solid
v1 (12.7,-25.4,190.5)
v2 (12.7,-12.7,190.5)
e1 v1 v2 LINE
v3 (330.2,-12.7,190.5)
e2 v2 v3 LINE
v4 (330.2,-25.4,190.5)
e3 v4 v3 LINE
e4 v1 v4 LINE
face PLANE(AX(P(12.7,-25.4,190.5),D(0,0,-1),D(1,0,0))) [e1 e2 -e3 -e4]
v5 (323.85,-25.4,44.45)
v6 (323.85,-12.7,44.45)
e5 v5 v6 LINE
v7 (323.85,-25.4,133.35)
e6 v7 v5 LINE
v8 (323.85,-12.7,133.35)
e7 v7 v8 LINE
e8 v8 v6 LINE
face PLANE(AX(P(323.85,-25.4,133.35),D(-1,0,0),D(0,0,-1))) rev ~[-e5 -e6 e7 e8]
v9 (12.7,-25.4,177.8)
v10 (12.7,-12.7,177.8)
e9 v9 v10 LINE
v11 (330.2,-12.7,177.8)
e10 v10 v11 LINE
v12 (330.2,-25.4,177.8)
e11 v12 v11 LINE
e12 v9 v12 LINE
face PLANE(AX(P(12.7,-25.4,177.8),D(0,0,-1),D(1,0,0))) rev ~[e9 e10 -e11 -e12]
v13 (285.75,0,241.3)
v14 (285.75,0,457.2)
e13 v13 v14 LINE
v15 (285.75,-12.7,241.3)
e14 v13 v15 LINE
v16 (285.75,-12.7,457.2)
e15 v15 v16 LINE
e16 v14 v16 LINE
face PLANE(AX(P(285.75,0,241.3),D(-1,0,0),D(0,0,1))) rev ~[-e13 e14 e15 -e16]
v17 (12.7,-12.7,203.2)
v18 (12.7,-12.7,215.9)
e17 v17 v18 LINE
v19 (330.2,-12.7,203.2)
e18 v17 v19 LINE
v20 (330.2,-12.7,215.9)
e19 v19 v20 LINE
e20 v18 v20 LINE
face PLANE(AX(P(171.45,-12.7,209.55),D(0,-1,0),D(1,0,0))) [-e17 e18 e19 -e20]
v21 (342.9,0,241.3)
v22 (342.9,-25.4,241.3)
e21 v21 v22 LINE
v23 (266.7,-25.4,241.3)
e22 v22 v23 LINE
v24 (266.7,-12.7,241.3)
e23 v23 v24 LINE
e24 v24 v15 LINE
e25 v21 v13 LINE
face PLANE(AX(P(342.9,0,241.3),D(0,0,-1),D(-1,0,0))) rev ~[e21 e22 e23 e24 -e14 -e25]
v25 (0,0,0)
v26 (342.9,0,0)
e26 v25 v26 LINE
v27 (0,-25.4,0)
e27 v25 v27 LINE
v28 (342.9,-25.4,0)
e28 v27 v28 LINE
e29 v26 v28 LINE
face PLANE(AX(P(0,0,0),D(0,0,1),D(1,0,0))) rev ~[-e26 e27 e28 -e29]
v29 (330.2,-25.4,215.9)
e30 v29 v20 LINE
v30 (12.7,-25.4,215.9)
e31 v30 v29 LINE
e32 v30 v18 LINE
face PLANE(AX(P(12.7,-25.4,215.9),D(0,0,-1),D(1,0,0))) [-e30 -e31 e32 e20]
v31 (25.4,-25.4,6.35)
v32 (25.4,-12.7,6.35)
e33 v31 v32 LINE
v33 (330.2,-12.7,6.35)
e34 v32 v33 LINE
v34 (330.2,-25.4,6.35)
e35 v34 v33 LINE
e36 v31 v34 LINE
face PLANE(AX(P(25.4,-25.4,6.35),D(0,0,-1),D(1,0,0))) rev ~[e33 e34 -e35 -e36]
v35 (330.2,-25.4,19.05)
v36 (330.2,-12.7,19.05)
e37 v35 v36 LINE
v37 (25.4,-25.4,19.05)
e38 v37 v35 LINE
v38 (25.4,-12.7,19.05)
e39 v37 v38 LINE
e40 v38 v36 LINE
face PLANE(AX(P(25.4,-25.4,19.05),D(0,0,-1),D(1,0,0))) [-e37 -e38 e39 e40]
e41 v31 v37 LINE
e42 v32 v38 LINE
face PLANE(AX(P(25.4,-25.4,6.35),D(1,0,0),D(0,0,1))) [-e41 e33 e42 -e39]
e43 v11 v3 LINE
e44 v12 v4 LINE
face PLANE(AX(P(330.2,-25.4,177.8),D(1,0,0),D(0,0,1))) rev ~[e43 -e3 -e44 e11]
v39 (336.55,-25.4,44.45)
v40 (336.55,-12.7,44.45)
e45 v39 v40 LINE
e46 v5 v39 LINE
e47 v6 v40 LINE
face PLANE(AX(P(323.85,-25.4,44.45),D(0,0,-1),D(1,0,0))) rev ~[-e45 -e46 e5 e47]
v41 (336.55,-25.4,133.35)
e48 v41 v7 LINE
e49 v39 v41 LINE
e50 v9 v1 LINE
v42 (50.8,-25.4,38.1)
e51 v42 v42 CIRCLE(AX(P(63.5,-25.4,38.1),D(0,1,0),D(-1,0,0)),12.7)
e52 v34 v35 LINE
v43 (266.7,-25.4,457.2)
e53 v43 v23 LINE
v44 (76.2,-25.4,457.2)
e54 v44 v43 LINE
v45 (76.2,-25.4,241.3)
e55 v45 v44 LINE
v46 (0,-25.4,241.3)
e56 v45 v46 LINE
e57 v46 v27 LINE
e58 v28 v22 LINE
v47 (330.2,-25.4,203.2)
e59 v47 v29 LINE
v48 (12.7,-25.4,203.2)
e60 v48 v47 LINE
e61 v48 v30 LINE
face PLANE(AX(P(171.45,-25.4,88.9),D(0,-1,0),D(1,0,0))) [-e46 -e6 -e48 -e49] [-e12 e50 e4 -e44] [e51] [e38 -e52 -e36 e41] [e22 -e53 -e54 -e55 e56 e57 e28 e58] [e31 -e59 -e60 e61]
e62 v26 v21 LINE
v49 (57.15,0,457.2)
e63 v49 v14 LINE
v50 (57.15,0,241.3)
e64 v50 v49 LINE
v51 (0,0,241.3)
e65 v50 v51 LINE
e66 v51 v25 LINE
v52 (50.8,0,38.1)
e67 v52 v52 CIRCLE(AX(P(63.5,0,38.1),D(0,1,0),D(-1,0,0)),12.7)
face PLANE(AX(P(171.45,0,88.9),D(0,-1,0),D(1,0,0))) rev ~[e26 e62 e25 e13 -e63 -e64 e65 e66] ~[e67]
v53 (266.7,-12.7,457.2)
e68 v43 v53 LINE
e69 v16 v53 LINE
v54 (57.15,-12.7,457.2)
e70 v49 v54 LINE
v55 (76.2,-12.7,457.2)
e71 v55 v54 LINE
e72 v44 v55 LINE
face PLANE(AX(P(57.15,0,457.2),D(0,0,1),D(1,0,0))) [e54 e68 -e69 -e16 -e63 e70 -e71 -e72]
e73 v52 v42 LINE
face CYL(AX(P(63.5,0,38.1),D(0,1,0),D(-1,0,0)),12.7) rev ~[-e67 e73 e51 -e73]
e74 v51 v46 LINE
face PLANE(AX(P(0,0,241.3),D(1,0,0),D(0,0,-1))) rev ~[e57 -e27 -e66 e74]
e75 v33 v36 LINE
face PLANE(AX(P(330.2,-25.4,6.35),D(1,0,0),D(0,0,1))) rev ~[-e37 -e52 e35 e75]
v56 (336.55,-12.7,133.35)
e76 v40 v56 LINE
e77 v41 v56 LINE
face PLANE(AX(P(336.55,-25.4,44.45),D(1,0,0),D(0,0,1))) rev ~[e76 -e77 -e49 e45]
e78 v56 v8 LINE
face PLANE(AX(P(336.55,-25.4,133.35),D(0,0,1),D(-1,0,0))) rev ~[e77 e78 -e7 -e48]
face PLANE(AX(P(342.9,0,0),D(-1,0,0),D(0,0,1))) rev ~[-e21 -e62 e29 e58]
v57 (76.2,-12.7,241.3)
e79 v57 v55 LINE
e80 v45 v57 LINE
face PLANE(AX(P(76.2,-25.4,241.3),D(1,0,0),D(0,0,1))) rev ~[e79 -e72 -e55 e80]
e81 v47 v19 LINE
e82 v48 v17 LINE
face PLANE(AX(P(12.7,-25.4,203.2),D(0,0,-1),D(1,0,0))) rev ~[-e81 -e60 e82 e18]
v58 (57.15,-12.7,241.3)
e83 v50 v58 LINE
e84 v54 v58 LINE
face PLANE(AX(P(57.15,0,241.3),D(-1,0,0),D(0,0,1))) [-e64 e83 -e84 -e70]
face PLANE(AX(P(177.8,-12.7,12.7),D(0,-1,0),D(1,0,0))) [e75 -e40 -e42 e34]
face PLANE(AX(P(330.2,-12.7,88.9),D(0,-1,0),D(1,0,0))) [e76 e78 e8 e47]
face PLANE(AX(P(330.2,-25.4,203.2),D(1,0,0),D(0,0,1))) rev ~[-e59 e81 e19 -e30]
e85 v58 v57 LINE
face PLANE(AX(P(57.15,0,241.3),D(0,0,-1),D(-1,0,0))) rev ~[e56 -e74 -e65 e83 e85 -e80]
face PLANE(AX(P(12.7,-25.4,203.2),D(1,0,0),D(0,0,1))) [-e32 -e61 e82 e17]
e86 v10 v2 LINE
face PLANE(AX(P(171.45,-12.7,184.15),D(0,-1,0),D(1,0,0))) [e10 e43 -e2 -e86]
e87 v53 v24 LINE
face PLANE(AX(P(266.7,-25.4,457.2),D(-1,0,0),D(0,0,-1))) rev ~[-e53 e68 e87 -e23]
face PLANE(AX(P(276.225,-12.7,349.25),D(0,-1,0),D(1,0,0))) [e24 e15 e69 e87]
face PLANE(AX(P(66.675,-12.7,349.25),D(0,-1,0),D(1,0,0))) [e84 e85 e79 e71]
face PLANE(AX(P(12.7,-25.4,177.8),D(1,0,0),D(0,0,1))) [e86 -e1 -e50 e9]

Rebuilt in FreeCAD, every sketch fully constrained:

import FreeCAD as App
import Part
import Sketcher
Q = App.Units.Quantity

doc = App.newDocument("Part")
body = doc.addObject("PartDesign::Body", "Body")

sketch1 = body.newObject("Sketcher::SketchObject", "Sketch")
sketch1.AttachmentSupport = (doc.getObject("XZ_Plane"), [""])
sketch1.MapMode = "FlatFace"
sketch1.addGeometry(Part.LineSegment(App.Vector(0, 0, 0), App.Vector(343, 0, 0)), False)
sketch1.addGeometry(Part.LineSegment(App.Vector(343, 0, 0), App.Vector(343, 241, 0)), False)
sketch1.addGeometry(Part.LineSegment(App.Vector(343, 241, 0), App.Vector(286, 241, 0)), False)
sketch1.addGeometry(Part.LineSegment(App.Vector(286, 241, 0), App.Vector(286, 457, 0)), False)
sketch1.addGeometry(Part.LineSegment(App.Vector(286, 457, 0), App.Vector(57, 457, 0)), False)
sketch1.addGeometry(Part.LineSegment(App.Vector(57, 457, 0), App.Vector(57, 241, 0)), False)
sketch1.addGeometry(Part.LineSegment(App.Vector(57, 241, 0), App.Vector(0, 241, 0)), False)
sketch1.addGeometry(Part.LineSegment(App.Vector(0, 241, 0), App.Vector(0, 0, 0)), False)
sketch1.addConstraint(Sketcher.Constraint("Coincident", 0, 2, 1, 1))
sketch1.addConstraint(Sketcher.Constraint("Coincident", 1, 2, 2, 1))
sketch1.addConstraint(Sketcher.Constraint("Coincident", 2, 2, 3, 1))
sketch1.addConstraint(Sketcher.Constraint("Coincident", 3, 2, 4, 1))
sketch1.addConstraint(Sketcher.Constraint("Coincident", 4, 2, 5, 1))
sketch1.addConstraint(Sketcher.Constraint("Coincident", 5, 2, 6, 1))
sketch1.addConstraint(Sketcher.Constraint("Coincident", 6, 2, 7, 1))
sketch1.addConstraint(Sketcher.Constraint("Coincident", 7, 2, 0, 1))
sketch1.addConstraint(Sketcher.Constraint("Horizontal", 0))
sketch1.addConstraint(Sketcher.Constraint("Vertical", 1))
sketch1.addConstraint(Sketcher.Constraint("Horizontal", 2))
sketch1.addConstraint(Sketcher.Constraint("Vertical", 3))
sketch1.addConstraint(Sketcher.Constraint("Horizontal", 4))
sketch1.addConstraint(Sketcher.Constraint("Vertical", 5))
sketch1.addConstraint(Sketcher.Constraint("Horizontal", 6))
sketch1.addConstraint(Sketcher.Constraint("Vertical", 7))
sketch1.addConstraint(Sketcher.Constraint("Coincident", 7, 2, -1, 1))
sketch1.addConstraint(Sketcher.Constraint("Horizontal", 2, 2, 5, 2))
sketch1.addConstraint(Sketcher.Constraint("Equal", 2, 6))
sketch1.addConstraint(Sketcher.Constraint("DistanceX", 4, 2, 4, 1, Q("9 in")))
sketch1.addConstraint(Sketcher.Constraint("DistanceX", 0, 1, 0, 2, Q("13.5 in")))
sketch1.addConstraint(Sketcher.Constraint("DistanceY", 1, 1, 1, 2, Q("9.5 in")))
sketch1.addConstraint(Sketcher.Constraint("DistanceY", 3, 1, 3, 2, Q("8.5 in")))
pad1 = body.newObject("PartDesign::Pad", "Pad")
pad1.Profile = sketch1
pad1.Length = Q("1 in")

sketch2 = body.newObject("Sketcher::SketchObject", "Sketch001")
sketch2.AttachmentSupport = (doc.getObject("XZ_Plane"), [""])
sketch2.MapMode = "FlatFace"
sketch2.AttachmentOffset = App.Placement(App.Vector(0, 0, 1 * 25.4), App.Rotation())
sketch2.addGeometry(Part.LineSegment(App.Vector(25, 19, 0), App.Vector(25, 6, 0)), False)
sketch2.addGeometry(Part.LineSegment(App.Vector(25, 6, 0), App.Vector(330, 6, 0)), False)
sketch2.addGeometry(Part.LineSegment(App.Vector(330, 6, 0), App.Vector(330, 19, 0)), False)
sketch2.addGeometry(Part.LineSegment(App.Vector(330, 19, 0), App.Vector(25, 19, 0)), False)
sketch2.addConstraint(Sketcher.Constraint("Coincident", 0, 2, 1, 1))
sketch2.addConstraint(Sketcher.Constraint("Coincident", 1, 2, 2, 1))
sketch2.addConstraint(Sketcher.Constraint("Coincident", 2, 2, 3, 1))
sketch2.addConstraint(Sketcher.Constraint("Coincident", 3, 2, 0, 1))
sketch2.addConstraint(Sketcher.Constraint("Vertical", 0))
sketch2.addConstraint(Sketcher.Constraint("Horizontal", 1))
sketch2.addConstraint(Sketcher.Constraint("Vertical", 2))
sketch2.addConstraint(Sketcher.Constraint("Horizontal", 3))
sketch2.addConstraint(Sketcher.Constraint("DistanceX", 1, 1, 1, 2, Q("12 in")))
sketch2.addConstraint(Sketcher.Constraint("DistanceY", 0, 2, 0, 1, Q("0.5 in")))
sketch2.addConstraint(Sketcher.Constraint("DistanceX", -1, 1, 0, 2, Q("1 in")))
sketch2.addConstraint(Sketcher.Constraint("DistanceY", -1, 1, 0, 2, Q("0.25 in")))
pocket1 = body.newObject("PartDesign::Pocket", "Pocket")
pocket1.Profile = sketch2
pocket1.Length = Q("0.5 in")

sketch3 = body.newObject("Sketcher::SketchObject", "Sketch002")
sketch3.AttachmentSupport = (doc.getObject("XZ_Plane"), [""])
sketch3.MapMode = "FlatFace"
sketch3.AttachmentOffset = App.Placement(App.Vector(0, 0, 1 * 25.4), App.Rotation())
sketch3.addGeometry(Part.LineSegment(App.Vector(25, -6, 0), App.Vector(25, -19, 0)), False)
sketch3.addGeometry(Part.LineSegment(App.Vector(25, -19, 0), App.Vector(330, -19, 0)), False)
sketch3.addGeometry(Part.LineSegment(App.Vector(330, -19, 0), App.Vector(330, -6, 0)), False)
sketch3.addGeometry(Part.LineSegment(App.Vector(330, -6, 0), App.Vector(25, -6, 0)), False)
sketch3.addConstraint(Sketcher.Constraint("Coincident", 0, 2, 1, 1))
sketch3.addConstraint(Sketcher.Constraint("Coincident", 1, 2, 2, 1))
sketch3.addConstraint(Sketcher.Constraint("Coincident", 2, 2, 3, 1))
sketch3.addConstraint(Sketcher.Constraint("Coincident", 3, 2, 0, 1))
sketch3.addConstraint(Sketcher.Constraint("Vertical", 0))
sketch3.addConstraint(Sketcher.Constraint("Horizontal", 1))
sketch3.addConstraint(Sketcher.Constraint("Vertical", 2))
sketch3.addConstraint(Sketcher.Constraint("Horizontal", 3))
sketch3.addConstraint(Sketcher.Constraint("DistanceX", 1, 1, 1, 2, Q("12 in")))
sketch3.addConstraint(Sketcher.Constraint("DistanceY", 0, 2, 0, 1, Q("0.5 in")))
sketch3.addConstraint(Sketcher.Constraint("DistanceX", -1, 1, 0, 2, Q("1 in")))
sketch3.addConstraint(Sketcher.Constraint("DistanceY", 0, 2, -1, 1, Q("0.75 in")))
pocket2 = body.newObject("PartDesign::Pocket", "Pocket001")
pocket2.Profile = sketch3
pocket2.Length = Q("0.5 in")

sketch4 = body.newObject("Sketcher::SketchObject", "Sketch003")
sketch4.AttachmentSupport = (doc.getObject("XZ_Plane"), [""])
sketch4.MapMode = "FlatFace"
sketch4.addGeometry(Part.Circle(App.Vector(64, 38, 0), App.Vector(0, 0, 1), 13), False)
sketch4.addConstraint(Sketcher.Constraint("Diameter", 0, Q("1 in")))
sketch4.addConstraint(Sketcher.Constraint("DistanceX", -1, 1, 0, 3, Q("2.5 in")))
sketch4.addConstraint(Sketcher.Constraint("DistanceY", -1, 1, 0, 3, Q("1.5 in")))
pocket3 = body.newObject("PartDesign::Pocket", "Pocket002")
pocket3.Profile = sketch4
pocket3.Length = Q("1 in")
pocket3.Reversed = True

sketch5 = body.newObject("Sketcher::SketchObject", "Sketch004")
sketch5.AttachmentSupport = (doc.getObject("XZ_Plane"), [""])
sketch5.MapMode = "FlatFace"
sketch5.AttachmentOffset = App.Placement(App.Vector(0, 0, 1 * 25.4), App.Rotation())
sketch5.addGeometry(Part.LineSegment(App.Vector(324, 44, 0), App.Vector(337, 44, 0)), False)
sketch5.addGeometry(Part.LineSegment(App.Vector(337, 44, 0), App.Vector(337, 133, 0)), False)
sketch5.addGeometry(Part.LineSegment(App.Vector(337, 133, 0), App.Vector(324, 133, 0)), False)
sketch5.addGeometry(Part.LineSegment(App.Vector(324, 133, 0), App.Vector(324, 44, 0)), False)
sketch5.addConstraint(Sketcher.Constraint("Coincident", 0, 2, 1, 1))
sketch5.addConstraint(Sketcher.Constraint("Coincident", 1, 2, 2, 1))
sketch5.addConstraint(Sketcher.Constraint("Coincident", 2, 2, 3, 1))
sketch5.addConstraint(Sketcher.Constraint("Coincident", 3, 2, 0, 1))
sketch5.addConstraint(Sketcher.Constraint("Horizontal", 0))
sketch5.addConstraint(Sketcher.Constraint("Vertical", 1))
sketch5.addConstraint(Sketcher.Constraint("Horizontal", 2))
sketch5.addConstraint(Sketcher.Constraint("Vertical", 3))
sketch5.addConstraint(Sketcher.Constraint("DistanceX", 0, 1, 0, 2, Q("0.5 in")))
sketch5.addConstraint(Sketcher.Constraint("DistanceY", 1, 1, 1, 2, Q("3.5 in")))
sketch5.addConstraint(Sketcher.Constraint("DistanceX", -1, 1, 0, 2, Q("13.25 in")))
sketch5.addConstraint(Sketcher.Constraint("DistanceY", -1, 1, 0, 2, Q("1.75 in")))
pocket4 = body.newObject("PartDesign::Pocket", "Pocket003")
pocket4.Profile = sketch5
pocket4.Length = Q("0.5 in")

sketch6 = body.newObject("Sketcher::SketchObject", "Sketch005")
sketch6.AttachmentSupport = (doc.getObject("XZ_Plane"), [""])
sketch6.MapMode = "FlatFace"
sketch6.AttachmentOffset = App.Placement(App.Vector(0, 0, 1 * 25.4), App.Rotation())
sketch6.addGeometry(Part.LineSegment(App.Vector(76, 457, 0), App.Vector(57, 457, 0)), False)
sketch6.addGeometry(Part.LineSegment(App.Vector(57, 457, 0), App.Vector(57, 241, 0)), False)
sketch6.addGeometry(Part.LineSegment(App.Vector(57, 241, 0), App.Vector(76, 241, 0)), False)
sketch6.addGeometry(Part.LineSegment(App.Vector(76, 241, 0), App.Vector(76, 457, 0)), False)
sketch6.addGeometry(Part.LineSegment(App.Vector(286, 241, 0), App.Vector(286, 457, 0)), False)
sketch6.addGeometry(Part.LineSegment(App.Vector(286, 457, 0), App.Vector(267, 457, 0)), False)
sketch6.addGeometry(Part.LineSegment(App.Vector(267, 457, 0), App.Vector(267, 241, 0)), False)
sketch6.addGeometry(Part.LineSegment(App.Vector(267, 241, 0), App.Vector(286, 241, 0)), False)
sketch6.addConstraint(Sketcher.Constraint("Coincident", 0, 2, 1, 1))
sketch6.addConstraint(Sketcher.Constraint("Coincident", 1, 2, 2, 1))
sketch6.addConstraint(Sketcher.Constraint("Coincident", 2, 2, 3, 1))
sketch6.addConstraint(Sketcher.Constraint("Coincident", 3, 2, 0, 1))
sketch6.addConstraint(Sketcher.Constraint("Coincident", 4, 2, 5, 1))
sketch6.addConstraint(Sketcher.Constraint("Coincident", 5, 2, 6, 1))
sketch6.addConstraint(Sketcher.Constraint("Coincident", 6, 2, 7, 1))
sketch6.addConstraint(Sketcher.Constraint("Coincident", 7, 2, 4, 1))
sketch6.addConstraint(Sketcher.Constraint("Horizontal", 0))
sketch6.addConstraint(Sketcher.Constraint("Vertical", 1))
sketch6.addConstraint(Sketcher.Constraint("Horizontal", 2))
sketch6.addConstraint(Sketcher.Constraint("Vertical", 3))
sketch6.addConstraint(Sketcher.Constraint("Vertical", 4))
sketch6.addConstraint(Sketcher.Constraint("Horizontal", 5))
sketch6.addConstraint(Sketcher.Constraint("Vertical", 6))
sketch6.addConstraint(Sketcher.Constraint("Horizontal", 7))
sketch6.addConstraint(Sketcher.Constraint("Horizontal", 3, 2, 4, 2))
sketch6.addConstraint(Sketcher.Constraint("Horizontal", 2, 2, 6, 2))
sketch6.addConstraint(Sketcher.Constraint("Equal", 2, 5))
sketch6.addConstraint(Sketcher.Constraint("DistanceY", 1, 2, 1, 1, Q("8.5 in")))
sketch6.addConstraint(Sketcher.Constraint("DistanceY", -1, 1, 0, 2, Q("18 in")))
sketch6.addConstraint(Sketcher.Constraint("DistanceX", -1, 1, 2, 2, Q("3 in")))
sketch6.addConstraint(Sketcher.Constraint("DistanceX", 0, 2, 4, 2, Q("9 in")))
sketch6.addConstraint(Sketcher.Constraint("DistanceX", 0, 2, 0, 1, Q("0.75 in")))
pocket5 = body.newObject("PartDesign::Pocket", "Pocket004")
pocket5.Profile = sketch6
pocket5.Length = Q("0.5 in")

sketch7 = body.newObject("Sketcher::SketchObject", "Sketch006")
sketch7.AttachmentSupport = (doc.getObject("XZ_Plane"), [""])
sketch7.MapMode = "FlatFace"
sketch7.AttachmentOffset = App.Placement(App.Vector(0, 0, 1 * 25.4), App.Rotation())
sketch7.addGeometry(Part.LineSegment(App.Vector(13, 216, 0), App.Vector(13, 203, 0)), False)
sketch7.addGeometry(Part.LineSegment(App.Vector(13, 203, 0), App.Vector(330, 203, 0)), False)
sketch7.addGeometry(Part.LineSegment(App.Vector(330, 203, 0), App.Vector(330, 216, 0)), False)
sketch7.addGeometry(Part.LineSegment(App.Vector(330, 216, 0), App.Vector(13, 216, 0)), False)
sketch7.addGeometry(Part.LineSegment(App.Vector(13, 190, 0), App.Vector(13, 178, 0)), False)
sketch7.addGeometry(Part.LineSegment(App.Vector(13, 178, 0), App.Vector(330, 178, 0)), False)
sketch7.addGeometry(Part.LineSegment(App.Vector(330, 178, 0), App.Vector(330, 190, 0)), False)
sketch7.addGeometry(Part.LineSegment(App.Vector(330, 190, 0), App.Vector(13, 190, 0)), False)
sketch7.addConstraint(Sketcher.Constraint("Coincident", 0, 2, 1, 1))
sketch7.addConstraint(Sketcher.Constraint("Coincident", 1, 2, 2, 1))
sketch7.addConstraint(Sketcher.Constraint("Coincident", 2, 2, 3, 1))
sketch7.addConstraint(Sketcher.Constraint("Coincident", 3, 2, 0, 1))
sketch7.addConstraint(Sketcher.Constraint("Coincident", 4, 2, 5, 1))
sketch7.addConstraint(Sketcher.Constraint("Coincident", 5, 2, 6, 1))
sketch7.addConstraint(Sketcher.Constraint("Coincident", 6, 2, 7, 1))
sketch7.addConstraint(Sketcher.Constraint("Coincident", 7, 2, 4, 1))
sketch7.addConstraint(Sketcher.Constraint("Vertical", 0))
sketch7.addConstraint(Sketcher.Constraint("Horizontal", 1))
sketch7.addConstraint(Sketcher.Constraint("Vertical", 2))
sketch7.addConstraint(Sketcher.Constraint("Horizontal", 3))
sketch7.addConstraint(Sketcher.Constraint("Vertical", 4))
sketch7.addConstraint(Sketcher.Constraint("Horizontal", 5))
sketch7.addConstraint(Sketcher.Constraint("Vertical", 6))
sketch7.addConstraint(Sketcher.Constraint("Horizontal", 7))
sketch7.addConstraint(Sketcher.Constraint("Vertical", 3, 2, 4, 2))
sketch7.addConstraint(Sketcher.Constraint("Vertical", 2, 2, 5, 2))
sketch7.addConstraint(Sketcher.Constraint("Equal", 2, 4))
sketch7.addConstraint(Sketcher.Constraint("DistanceX", 1, 1, 1, 2, Q("12.5 in")))
sketch7.addConstraint(Sketcher.Constraint("DistanceY", 0, 2, 0, 1, Q("0.5 in")))
sketch7.addConstraint(Sketcher.Constraint("DistanceY", -1, 1, 0, 2, Q("8 in")))
sketch7.addConstraint(Sketcher.Constraint("DistanceX", -1, 1, 1, 2, Q("13 in")))
sketch7.addConstraint(Sketcher.Constraint("DistanceY", -1, 1, 4, 2, Q("7 in")))
pocket6 = body.newObject("PartDesign::Pocket", "Pocket005")
pocket6.Profile = sketch7
pocket6.Length = Q("0.5 in")

doc.recompute()
